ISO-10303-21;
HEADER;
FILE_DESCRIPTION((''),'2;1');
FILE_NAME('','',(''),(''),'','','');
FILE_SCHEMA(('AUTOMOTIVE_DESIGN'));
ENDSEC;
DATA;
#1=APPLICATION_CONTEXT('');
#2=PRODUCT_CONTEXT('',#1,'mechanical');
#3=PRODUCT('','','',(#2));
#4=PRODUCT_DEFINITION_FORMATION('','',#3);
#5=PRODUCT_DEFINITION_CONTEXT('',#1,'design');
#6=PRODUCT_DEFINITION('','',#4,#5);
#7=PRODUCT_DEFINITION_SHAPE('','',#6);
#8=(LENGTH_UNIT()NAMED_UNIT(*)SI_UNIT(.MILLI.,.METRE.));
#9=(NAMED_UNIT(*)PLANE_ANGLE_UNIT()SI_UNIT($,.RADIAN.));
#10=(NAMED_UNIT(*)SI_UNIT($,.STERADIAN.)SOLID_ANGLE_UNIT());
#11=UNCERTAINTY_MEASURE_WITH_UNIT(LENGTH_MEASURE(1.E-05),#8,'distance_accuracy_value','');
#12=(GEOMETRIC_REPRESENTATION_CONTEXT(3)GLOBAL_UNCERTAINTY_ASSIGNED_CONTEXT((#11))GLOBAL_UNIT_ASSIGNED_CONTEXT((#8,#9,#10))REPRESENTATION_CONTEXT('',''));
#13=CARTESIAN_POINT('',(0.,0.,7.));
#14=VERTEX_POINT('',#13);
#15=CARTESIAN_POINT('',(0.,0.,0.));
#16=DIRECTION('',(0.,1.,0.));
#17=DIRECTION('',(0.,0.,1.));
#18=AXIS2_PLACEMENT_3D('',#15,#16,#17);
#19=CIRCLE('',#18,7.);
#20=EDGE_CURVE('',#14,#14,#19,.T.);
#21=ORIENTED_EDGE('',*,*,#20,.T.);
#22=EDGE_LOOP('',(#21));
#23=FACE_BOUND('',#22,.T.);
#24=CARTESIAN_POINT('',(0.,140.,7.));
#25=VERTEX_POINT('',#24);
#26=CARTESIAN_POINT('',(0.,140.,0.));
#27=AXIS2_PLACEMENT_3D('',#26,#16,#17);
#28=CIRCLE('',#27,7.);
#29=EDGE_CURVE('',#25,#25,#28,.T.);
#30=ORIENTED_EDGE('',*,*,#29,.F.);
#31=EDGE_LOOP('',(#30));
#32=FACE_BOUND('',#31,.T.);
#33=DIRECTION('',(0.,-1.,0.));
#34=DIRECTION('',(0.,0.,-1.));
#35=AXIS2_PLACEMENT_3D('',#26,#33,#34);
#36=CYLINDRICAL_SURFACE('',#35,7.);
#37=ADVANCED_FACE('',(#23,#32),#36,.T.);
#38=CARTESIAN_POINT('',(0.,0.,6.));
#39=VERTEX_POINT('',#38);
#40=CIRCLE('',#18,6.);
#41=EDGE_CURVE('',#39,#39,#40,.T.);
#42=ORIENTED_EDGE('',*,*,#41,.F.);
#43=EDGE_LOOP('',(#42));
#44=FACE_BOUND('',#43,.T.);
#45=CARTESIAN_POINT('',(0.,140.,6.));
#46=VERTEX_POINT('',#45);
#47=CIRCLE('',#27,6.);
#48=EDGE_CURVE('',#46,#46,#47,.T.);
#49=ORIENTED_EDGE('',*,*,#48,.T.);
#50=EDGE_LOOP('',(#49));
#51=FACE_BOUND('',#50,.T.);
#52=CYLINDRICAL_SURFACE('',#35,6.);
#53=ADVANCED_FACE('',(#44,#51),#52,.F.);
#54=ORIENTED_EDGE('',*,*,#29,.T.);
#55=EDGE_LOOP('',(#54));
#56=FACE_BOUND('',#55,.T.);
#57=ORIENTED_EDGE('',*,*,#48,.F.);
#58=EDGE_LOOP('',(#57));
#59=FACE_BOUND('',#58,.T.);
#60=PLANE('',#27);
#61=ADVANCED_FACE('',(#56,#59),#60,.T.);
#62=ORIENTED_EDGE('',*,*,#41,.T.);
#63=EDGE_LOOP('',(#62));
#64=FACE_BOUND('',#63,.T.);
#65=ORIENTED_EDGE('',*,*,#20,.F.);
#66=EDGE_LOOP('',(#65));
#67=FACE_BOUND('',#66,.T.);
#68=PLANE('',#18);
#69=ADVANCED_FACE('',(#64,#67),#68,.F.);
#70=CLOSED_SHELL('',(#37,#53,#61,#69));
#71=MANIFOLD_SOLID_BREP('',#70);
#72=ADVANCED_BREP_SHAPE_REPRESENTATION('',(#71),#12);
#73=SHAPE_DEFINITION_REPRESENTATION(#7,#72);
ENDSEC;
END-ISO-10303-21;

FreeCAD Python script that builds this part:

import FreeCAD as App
import Part
import Sketcher

V = App.Vector
Q = App.Units.Quantity

doc = App.newDocument("Part")
body = doc.addObject("PartDesign::Body", "Body")

sketch1 = doc.addObject("Sketcher::SketchObject", "Sketch")
body.addObject(sketch1)
sketch1.AttachmentSupport = (doc.XZ_Plane, [""])
sketch1.MapMode = "FlatFace"
sketch1.addGeometry(Part.Circle(V(0, 0, 0), V(0, 0, 1), 7), False)
sketch1.addGeometry(Part.Circle(V(0, 0, 0), V(0, 0, 1), 6), False)
sketch1.addConstraint(Sketcher.Constraint("Coincident", 0, 3, -1, 1))
sketch1.addConstraint(Sketcher.Constraint("Coincident", 1, 3, -1, 1))
sketch1.addConstraint(Sketcher.Constraint("Diameter", 0, Q("14 mm")))
sketch1.addConstraint(Sketcher.Constraint("Diameter", 1, Q("12 mm")))
pad1 = doc.addObject("PartDesign::Pad", "Pad")
body.addObject(pad1)
pad1.Profile = sketch1
pad1.Length = 140
pad1.Reversed = True

doc.recompute()
